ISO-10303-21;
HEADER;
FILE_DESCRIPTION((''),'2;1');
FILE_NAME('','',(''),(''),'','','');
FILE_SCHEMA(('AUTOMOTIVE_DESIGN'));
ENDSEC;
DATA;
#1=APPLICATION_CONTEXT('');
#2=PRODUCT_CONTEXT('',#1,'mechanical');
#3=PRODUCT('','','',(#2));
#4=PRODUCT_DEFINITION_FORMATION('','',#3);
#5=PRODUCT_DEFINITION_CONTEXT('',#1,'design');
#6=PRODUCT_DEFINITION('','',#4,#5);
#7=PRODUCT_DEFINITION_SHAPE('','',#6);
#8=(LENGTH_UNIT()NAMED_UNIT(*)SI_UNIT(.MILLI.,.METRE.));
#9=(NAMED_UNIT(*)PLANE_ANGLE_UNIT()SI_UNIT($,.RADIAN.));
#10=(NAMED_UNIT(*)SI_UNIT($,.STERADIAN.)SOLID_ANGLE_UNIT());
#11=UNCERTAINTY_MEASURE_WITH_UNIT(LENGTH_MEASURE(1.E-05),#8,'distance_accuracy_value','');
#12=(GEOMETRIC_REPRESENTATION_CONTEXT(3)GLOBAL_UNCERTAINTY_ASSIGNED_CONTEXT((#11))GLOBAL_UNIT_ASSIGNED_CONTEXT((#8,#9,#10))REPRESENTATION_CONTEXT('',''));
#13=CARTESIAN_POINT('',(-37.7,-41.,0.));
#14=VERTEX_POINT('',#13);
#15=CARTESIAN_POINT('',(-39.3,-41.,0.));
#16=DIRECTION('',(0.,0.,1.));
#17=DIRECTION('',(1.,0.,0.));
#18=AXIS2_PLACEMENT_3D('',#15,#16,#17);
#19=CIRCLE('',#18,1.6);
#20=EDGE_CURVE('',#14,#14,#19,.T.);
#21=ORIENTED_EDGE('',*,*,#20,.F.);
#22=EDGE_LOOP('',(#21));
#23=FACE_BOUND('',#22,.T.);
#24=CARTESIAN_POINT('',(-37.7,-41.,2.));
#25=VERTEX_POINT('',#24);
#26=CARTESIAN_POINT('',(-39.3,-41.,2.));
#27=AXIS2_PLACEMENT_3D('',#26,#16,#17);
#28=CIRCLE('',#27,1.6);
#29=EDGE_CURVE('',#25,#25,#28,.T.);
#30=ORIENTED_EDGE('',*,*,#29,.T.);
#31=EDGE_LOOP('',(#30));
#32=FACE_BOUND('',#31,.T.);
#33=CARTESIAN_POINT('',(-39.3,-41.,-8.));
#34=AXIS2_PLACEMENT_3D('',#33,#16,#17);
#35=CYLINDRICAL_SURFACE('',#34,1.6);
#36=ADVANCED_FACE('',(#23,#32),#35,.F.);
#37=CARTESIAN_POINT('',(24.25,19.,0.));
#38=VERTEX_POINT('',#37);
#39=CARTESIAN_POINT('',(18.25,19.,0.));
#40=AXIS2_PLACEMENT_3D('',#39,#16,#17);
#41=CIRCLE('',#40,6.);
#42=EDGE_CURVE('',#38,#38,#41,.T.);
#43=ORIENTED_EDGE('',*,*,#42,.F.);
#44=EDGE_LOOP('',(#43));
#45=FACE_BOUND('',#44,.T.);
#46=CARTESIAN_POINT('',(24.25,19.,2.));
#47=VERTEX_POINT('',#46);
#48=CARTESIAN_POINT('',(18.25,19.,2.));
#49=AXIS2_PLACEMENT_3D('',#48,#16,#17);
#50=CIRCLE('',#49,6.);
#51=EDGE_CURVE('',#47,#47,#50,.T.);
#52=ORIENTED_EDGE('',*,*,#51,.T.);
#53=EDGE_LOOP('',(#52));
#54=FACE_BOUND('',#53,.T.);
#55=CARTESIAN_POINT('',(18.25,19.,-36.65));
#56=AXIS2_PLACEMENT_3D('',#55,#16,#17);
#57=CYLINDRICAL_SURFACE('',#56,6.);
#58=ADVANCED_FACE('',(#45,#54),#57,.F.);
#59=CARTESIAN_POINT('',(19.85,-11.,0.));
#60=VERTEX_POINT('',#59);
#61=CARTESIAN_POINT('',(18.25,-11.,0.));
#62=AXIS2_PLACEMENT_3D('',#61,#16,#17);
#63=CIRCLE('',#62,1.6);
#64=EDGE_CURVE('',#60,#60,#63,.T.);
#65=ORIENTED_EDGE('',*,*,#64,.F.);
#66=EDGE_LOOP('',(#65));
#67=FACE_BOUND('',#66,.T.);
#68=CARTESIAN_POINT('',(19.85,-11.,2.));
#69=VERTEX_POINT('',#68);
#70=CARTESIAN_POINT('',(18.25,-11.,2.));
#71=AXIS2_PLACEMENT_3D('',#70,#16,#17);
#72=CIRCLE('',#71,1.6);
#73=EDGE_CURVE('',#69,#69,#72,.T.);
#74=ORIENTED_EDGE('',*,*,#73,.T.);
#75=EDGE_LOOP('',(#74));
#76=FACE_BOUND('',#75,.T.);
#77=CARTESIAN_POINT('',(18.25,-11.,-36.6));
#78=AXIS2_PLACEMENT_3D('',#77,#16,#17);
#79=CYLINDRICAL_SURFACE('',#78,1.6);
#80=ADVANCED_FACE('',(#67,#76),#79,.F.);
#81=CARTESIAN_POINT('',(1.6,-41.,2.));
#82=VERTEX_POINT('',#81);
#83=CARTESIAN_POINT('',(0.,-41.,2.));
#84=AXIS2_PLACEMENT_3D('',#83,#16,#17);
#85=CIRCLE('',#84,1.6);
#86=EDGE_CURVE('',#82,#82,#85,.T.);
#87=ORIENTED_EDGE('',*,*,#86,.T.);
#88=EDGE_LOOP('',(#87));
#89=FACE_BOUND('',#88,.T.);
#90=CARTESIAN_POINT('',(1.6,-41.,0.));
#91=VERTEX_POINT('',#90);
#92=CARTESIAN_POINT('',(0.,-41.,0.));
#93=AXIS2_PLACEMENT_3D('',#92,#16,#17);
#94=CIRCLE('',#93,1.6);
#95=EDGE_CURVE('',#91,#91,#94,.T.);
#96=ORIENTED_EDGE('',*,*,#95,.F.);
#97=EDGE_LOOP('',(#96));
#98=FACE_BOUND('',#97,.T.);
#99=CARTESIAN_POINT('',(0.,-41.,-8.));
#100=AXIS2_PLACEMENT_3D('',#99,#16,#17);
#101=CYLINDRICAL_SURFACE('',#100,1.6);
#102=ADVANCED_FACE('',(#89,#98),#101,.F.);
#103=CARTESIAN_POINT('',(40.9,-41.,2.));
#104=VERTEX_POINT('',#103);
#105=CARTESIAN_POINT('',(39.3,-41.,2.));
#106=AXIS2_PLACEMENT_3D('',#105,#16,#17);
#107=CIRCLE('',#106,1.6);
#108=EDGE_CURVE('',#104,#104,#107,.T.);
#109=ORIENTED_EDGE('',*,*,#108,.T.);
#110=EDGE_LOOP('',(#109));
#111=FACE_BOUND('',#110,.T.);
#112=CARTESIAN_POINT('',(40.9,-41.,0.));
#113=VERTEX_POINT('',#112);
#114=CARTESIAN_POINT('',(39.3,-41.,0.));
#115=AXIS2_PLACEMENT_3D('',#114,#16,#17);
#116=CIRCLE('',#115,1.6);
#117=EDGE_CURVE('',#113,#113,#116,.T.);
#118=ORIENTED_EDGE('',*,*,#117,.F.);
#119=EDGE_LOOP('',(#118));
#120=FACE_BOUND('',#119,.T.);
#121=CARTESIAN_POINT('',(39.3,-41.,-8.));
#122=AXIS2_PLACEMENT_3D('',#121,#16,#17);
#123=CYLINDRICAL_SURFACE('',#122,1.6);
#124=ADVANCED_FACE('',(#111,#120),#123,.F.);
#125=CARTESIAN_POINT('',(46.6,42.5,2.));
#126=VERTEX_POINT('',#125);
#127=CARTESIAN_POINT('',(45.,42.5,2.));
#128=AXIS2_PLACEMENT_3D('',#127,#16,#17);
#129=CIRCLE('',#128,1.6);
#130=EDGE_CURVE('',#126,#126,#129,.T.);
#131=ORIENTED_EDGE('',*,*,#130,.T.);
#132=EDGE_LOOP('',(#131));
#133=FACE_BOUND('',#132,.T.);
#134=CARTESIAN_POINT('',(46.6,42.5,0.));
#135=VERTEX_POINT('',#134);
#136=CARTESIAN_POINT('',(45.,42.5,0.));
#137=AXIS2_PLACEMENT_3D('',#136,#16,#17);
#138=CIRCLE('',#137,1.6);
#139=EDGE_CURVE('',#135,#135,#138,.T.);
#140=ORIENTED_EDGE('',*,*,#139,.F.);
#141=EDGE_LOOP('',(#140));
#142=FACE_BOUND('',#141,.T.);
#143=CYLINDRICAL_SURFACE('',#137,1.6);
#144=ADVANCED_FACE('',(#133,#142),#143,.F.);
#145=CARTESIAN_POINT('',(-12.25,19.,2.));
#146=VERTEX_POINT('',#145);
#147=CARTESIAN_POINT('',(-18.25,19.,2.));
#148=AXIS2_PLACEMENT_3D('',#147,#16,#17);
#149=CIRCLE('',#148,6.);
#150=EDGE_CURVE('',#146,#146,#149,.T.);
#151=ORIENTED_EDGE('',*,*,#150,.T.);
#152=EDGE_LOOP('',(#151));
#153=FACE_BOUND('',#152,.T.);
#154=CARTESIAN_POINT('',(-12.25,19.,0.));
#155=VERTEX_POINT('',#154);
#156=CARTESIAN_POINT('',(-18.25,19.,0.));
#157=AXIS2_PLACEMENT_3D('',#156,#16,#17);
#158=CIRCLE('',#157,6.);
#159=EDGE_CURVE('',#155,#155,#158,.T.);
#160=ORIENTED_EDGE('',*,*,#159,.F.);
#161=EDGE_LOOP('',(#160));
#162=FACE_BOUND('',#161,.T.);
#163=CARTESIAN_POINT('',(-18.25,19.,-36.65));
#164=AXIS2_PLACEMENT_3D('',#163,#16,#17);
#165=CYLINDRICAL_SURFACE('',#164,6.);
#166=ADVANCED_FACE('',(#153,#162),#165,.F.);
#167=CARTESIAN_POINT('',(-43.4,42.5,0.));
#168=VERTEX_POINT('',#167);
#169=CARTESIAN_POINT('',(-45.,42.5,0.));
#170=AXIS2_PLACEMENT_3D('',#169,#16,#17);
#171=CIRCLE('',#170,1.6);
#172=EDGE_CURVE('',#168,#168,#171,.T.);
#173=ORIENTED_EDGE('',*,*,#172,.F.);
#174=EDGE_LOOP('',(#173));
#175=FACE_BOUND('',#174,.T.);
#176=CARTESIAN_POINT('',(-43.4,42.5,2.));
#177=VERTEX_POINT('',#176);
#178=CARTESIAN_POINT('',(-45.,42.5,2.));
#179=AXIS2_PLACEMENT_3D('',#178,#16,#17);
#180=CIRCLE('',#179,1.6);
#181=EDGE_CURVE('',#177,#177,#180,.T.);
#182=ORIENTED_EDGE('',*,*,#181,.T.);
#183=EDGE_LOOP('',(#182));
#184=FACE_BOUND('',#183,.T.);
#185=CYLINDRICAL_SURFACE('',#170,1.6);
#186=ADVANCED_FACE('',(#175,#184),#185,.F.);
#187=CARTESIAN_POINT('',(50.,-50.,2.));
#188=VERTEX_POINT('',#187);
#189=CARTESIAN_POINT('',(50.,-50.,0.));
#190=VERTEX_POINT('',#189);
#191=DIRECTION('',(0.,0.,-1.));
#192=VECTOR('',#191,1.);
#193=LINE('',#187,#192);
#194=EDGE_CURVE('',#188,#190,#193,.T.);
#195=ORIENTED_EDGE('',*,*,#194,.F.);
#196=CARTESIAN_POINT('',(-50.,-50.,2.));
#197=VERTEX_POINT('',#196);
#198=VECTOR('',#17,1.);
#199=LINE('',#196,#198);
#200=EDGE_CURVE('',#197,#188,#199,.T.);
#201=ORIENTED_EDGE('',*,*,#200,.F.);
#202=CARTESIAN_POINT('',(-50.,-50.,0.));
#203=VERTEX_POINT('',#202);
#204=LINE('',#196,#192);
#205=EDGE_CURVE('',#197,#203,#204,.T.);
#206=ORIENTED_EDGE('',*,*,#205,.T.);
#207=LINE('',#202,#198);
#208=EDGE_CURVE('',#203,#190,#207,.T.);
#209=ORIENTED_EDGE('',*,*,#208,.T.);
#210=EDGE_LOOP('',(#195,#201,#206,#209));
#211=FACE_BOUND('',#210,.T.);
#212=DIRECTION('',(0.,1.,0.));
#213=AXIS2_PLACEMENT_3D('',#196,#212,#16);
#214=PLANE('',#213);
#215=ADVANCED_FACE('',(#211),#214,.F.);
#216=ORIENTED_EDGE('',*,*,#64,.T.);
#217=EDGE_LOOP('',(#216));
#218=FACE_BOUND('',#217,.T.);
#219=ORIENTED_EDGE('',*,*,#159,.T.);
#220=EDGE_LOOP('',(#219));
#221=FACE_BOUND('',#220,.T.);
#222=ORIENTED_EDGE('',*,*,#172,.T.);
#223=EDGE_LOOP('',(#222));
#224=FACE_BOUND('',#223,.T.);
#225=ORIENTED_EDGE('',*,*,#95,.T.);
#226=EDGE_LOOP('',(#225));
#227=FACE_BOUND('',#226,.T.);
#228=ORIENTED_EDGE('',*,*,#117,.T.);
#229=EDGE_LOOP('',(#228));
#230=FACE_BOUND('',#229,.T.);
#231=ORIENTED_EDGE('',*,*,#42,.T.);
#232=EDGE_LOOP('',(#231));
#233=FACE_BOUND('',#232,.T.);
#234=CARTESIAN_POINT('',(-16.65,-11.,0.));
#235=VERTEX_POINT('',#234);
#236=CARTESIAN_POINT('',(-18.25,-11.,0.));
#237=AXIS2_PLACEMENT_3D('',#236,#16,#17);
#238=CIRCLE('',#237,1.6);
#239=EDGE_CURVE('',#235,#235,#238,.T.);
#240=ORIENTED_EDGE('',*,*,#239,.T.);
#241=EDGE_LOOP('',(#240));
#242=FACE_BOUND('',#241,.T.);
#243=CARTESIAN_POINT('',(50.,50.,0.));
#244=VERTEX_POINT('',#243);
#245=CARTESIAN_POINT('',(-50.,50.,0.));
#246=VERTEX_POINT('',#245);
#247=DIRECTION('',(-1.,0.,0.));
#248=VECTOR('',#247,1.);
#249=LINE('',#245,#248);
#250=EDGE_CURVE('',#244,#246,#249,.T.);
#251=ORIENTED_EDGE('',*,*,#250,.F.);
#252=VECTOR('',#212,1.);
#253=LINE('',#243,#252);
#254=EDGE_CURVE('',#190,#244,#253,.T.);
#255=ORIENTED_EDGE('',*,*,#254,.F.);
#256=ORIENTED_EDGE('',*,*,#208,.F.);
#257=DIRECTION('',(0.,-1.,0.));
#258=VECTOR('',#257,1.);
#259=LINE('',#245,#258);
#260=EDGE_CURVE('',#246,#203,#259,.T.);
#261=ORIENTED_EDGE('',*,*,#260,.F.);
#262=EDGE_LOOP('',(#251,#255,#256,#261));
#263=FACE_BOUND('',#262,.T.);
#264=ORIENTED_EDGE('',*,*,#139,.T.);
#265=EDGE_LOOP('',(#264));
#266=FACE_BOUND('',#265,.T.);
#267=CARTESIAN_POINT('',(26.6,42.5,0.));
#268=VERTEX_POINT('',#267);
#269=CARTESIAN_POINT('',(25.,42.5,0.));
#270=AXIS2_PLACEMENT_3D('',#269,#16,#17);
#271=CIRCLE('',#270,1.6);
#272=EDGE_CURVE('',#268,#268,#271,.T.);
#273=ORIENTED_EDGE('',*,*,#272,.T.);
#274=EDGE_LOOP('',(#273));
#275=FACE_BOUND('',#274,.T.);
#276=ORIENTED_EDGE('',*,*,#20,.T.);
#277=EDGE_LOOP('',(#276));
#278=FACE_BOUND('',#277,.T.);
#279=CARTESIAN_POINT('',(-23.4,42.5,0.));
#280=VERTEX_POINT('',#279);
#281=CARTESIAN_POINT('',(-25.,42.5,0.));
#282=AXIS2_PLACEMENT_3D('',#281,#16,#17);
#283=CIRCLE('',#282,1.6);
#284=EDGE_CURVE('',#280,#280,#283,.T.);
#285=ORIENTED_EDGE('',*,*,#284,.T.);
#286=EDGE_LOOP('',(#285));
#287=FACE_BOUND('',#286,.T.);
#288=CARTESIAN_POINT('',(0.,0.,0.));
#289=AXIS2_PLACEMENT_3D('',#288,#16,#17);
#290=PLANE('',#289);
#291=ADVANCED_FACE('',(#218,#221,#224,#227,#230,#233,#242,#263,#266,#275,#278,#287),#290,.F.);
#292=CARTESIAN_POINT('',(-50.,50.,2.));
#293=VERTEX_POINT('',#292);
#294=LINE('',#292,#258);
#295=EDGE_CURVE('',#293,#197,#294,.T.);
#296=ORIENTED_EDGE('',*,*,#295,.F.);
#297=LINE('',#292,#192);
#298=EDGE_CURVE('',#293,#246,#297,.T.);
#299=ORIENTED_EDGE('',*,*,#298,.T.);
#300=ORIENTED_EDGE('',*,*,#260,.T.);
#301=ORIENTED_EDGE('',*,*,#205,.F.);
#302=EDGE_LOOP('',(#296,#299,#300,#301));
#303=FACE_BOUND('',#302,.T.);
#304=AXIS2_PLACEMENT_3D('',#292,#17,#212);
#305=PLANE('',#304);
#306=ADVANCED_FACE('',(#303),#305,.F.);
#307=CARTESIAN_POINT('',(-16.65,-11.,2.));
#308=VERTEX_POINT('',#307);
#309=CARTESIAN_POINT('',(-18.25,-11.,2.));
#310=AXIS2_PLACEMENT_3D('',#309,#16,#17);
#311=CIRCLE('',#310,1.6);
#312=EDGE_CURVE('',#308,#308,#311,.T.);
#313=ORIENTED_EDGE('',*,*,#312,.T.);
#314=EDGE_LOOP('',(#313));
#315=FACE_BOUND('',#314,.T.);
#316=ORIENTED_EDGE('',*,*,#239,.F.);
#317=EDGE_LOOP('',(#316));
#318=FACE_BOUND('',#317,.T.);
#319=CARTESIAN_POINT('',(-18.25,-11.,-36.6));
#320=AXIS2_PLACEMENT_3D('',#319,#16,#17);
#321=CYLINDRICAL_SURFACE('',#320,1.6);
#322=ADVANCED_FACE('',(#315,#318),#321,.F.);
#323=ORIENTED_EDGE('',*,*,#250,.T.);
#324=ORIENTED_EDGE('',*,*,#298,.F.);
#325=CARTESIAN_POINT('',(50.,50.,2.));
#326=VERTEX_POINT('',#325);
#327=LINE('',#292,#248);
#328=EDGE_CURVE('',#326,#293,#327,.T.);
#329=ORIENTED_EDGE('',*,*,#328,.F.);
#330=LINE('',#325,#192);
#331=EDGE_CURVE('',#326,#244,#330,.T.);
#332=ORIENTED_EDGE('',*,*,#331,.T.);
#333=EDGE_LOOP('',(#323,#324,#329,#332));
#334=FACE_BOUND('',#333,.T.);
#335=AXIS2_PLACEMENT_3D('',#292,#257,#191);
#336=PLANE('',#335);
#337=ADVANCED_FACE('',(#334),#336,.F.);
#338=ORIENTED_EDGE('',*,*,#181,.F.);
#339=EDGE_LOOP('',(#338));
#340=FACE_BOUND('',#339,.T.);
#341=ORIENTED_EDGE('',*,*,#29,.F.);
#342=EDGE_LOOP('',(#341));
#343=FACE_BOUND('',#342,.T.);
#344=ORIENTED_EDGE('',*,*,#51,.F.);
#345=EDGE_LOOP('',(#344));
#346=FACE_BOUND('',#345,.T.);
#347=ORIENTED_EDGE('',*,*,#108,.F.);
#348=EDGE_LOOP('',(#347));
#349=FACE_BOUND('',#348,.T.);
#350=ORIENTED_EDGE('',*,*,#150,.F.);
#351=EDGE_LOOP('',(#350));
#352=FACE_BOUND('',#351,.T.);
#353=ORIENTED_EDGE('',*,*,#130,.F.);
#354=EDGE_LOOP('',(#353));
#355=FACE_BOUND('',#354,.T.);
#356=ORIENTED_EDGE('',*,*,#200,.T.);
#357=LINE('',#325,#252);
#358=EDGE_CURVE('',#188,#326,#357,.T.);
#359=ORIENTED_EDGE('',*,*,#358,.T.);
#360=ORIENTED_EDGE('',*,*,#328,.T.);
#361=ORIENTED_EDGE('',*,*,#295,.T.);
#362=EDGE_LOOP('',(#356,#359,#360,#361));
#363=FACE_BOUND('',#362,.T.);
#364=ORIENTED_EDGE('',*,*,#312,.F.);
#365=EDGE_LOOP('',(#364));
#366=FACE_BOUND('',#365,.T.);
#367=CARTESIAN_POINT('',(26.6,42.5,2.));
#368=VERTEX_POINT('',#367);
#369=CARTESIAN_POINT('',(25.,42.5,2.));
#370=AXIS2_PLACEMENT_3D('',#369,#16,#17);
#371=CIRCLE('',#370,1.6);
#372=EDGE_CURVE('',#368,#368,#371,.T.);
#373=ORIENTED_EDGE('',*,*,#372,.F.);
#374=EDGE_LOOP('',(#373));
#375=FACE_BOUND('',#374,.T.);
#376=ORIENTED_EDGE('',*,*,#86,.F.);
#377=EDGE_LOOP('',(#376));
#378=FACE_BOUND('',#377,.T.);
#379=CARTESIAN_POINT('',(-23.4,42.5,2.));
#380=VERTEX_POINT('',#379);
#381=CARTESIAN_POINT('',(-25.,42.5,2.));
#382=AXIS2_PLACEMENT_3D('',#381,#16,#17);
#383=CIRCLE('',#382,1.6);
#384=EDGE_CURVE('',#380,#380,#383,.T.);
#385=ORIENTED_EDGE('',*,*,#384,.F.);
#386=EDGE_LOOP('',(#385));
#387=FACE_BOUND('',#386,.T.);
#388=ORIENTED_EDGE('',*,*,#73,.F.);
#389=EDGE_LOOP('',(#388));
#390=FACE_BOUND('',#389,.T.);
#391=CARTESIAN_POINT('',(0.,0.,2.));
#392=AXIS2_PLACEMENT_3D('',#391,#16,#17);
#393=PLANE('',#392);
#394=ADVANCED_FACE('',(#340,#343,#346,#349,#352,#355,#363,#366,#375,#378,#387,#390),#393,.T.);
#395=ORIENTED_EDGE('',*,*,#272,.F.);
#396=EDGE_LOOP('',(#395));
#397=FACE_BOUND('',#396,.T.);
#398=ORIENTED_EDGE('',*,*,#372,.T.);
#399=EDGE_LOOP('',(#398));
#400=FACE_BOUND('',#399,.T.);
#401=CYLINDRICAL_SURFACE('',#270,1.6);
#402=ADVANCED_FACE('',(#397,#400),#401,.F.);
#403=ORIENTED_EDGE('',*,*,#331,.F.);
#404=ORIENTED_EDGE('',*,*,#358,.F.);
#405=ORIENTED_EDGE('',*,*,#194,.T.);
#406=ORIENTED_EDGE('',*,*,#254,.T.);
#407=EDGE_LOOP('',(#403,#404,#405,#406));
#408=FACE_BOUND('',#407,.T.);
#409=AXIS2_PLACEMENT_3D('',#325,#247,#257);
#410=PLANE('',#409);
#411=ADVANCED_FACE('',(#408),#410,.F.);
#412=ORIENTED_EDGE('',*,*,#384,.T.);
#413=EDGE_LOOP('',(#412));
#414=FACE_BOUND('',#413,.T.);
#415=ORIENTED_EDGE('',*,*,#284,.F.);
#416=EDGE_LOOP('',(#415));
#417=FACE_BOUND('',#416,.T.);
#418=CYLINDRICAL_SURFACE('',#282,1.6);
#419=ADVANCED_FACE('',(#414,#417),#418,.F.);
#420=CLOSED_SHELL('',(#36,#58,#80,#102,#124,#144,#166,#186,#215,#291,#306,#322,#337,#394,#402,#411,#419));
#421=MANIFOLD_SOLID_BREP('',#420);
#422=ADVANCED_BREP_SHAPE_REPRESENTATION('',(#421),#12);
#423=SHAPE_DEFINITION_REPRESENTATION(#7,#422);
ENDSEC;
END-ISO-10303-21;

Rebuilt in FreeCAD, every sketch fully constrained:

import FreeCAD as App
import Part
import Sketcher

V = App.Vector


def add_polygon(sketch, points):
    """Adds a closed chain of lines whose ends are joined by coincident constraints."""
    first, n = sketch.GeometryCount, len(points)
    for a, b in zip(points, points[1:] + points[:1]):
        sketch.addGeometry(Part.LineSegment(App.Vector(*a, 0), App.Vector(*b, 0)), False)
    for i in range(n):
        sketch.addConstraint(Sketcher.Constraint("Coincident", first + i, 2, first + (i + 1) % n, 1))

doc = App.newDocument("Part")
body = doc.addObject("PartDesign::Body", "Body")

# Sketch on XY plane
sketch1 = doc.addObject("Sketcher::SketchObject", "Sketch")
body.addObject(sketch1)
sketch1.AttachmentSupport = (doc.XY_Plane, [""])
sketch1.MapMode = "FlatFace"
add_polygon(sketch1, [(-50, 50), (-50, -50), (50, -50), (50, 50)])  # lines 0-3
sketch1.addConstraint(Sketcher.Constraint("Vertical", 0))
sketch1.addConstraint(Sketcher.Constraint("Horizontal", 1))
sketch1.addConstraint(Sketcher.Constraint("Vertical", 2))
sketch1.addConstraint(Sketcher.Constraint("Horizontal", 3))
sketch1.addConstraint(Sketcher.Constraint("Symmetric", 0, 2, 2, 2, -1, 1))
sketch1.addConstraint(Sketcher.Constraint("Equal", 3, 0))
sketch1.addConstraint(Sketcher.Constraint("DistanceX", 1, 1, 1, 2, 100.0))
pad1 = doc.addObject("PartDesign::Pad", "Pad")
body.addObject(pad1)
pad1.Profile = sketch1
pad1.Length = 2

# Sketch on XY plane
sketch2 = doc.addObject("Sketcher::SketchObject", "Sketch001")
body.addObject(sketch2)
sketch2.AttachmentSupport = (doc.XY_Plane, [""])
sketch2.MapMode = "FlatFace"
sketch2.AttachmentOffset = App.Placement(V(0, 0, 2), App.Rotation())
sketch2.addGeometry(Part.Circle(V(-45, 42.5, 0), V(0, 0, 1), 1.6), False)
sketch2.addGeometry(Part.Circle(V(-25, 42.5, 0), V(0, 0, 1), 1.6), False)
sketch2.addGeometry(Part.Circle(V(25, 42.5, 0), V(0, 0, 1), 1.6), False)
sketch2.addGeometry(Part.Circle(V(45, 42.5, 0), V(0, 0, 1), 1.6), False)
sketch2.addConstraint(Sketcher.Constraint("Equal", 0, 1))
sketch2.addConstraint(Sketcher.Constraint("Equal", 1, 2))
sketch2.addConstraint(Sketcher.Constraint("Equal", 2, 3))
sketch2.addConstraint(Sketcher.Constraint("Symmetric", 1, 3, 2, 3, -2))
sketch2.addConstraint(Sketcher.Constraint("Symmetric", 0, 3, 3, 3, -2))
sketch2.addConstraint(Sketcher.Constraint("Horizontal", 0, 3, 1, 3))
sketch2.addConstraint(Sketcher.Constraint("Diameter", 0, 3.2))
sketch2.addConstraint(Sketcher.Constraint("DistanceX", 0, 3, -1, 1, 45.0))
sketch2.addConstraint(Sketcher.Constraint("DistanceX", 1, 3, -1, 1, 25.0))
sketch2.addConstraint(Sketcher.Constraint("DistanceY", -1, 1, 0, 3, 42.5))
pocket1 = doc.addObject("PartDesign::Pocket", "Pocket")
body.addObject(pocket1)
pocket1.Profile = sketch2
pocket1.Length = 2

# Sketch on XY plane
sketch3 = doc.addObject("Sketcher::SketchObject", "Sketch002")
body.addObject(sketch3)
sketch3.AttachmentSupport = (doc.XY_Plane, [""])
sketch3.MapMode = "FlatFace"
sketch3.AttachmentOffset = App.Placement(V(0, 0, 2), App.Rotation())
sketch3.addGeometry(Part.Circle(V(0, -41, 0), V(0, 0, 1), 1.6), False)
sketch3.addConstraint(Sketcher.Constraint("PointOnObject", 0, 3, -2))
sketch3.addConstraint(Sketcher.Constraint("Diameter", 0, 3.2))
sketch3.addConstraint(Sketcher.Constraint("DistanceY", 0, 3, -1, 1, 41.0))
pocket2 = doc.addObject("PartDesign::Pocket", "Pocket001")
body.addObject(pocket2)
pocket2.Profile = sketch3
pocket2.Length = 10

# Sketch on XY plane
sketch4 = doc.addObject("Sketcher::SketchObject", "Sketch003")
body.addObject(sketch4)
sketch4.AttachmentSupport = (doc.XY_Plane, [""])
sketch4.MapMode = "FlatFace"
sketch4.AttachmentOffset = App.Placement(V(0, 0, 2), App.Rotation())
sketch4.addGeometry(Part.Circle(V(-18, 19, 0), V(0, 0, 1), 6), False)
sketch4.addGeometry(Part.Circle(V(18, 19, 0), V(0, 0, 1), 6), False)
sketch4.addConstraint(Sketcher.Constraint("Equal", 0, 1))
sketch4.addConstraint(Sketcher.Constraint("Symmetric", 0, 3, 1, 3, -2))
sketch4.addConstraint(Sketcher.Constraint("Diameter", 0, 12.0))
sketch4.addConstraint(Sketcher.Constraint("DistanceY", -1, 1, 0, 3, 19.0))
sketch4.addConstraint(Sketcher.Constraint("DistanceX", 0, 3, 1, 3, 36.5))
pocket3 = doc.addObject("PartDesign::Pocket", "Pocket002")
body.addObject(pocket3)
pocket3.Profile = sketch4
pocket3.Length = 38.65

# Sketch on XY plane
sketch5 = doc.addObject("Sketcher::SketchObject", "Sketch004")
body.addObject(sketch5)
sketch5.AttachmentSupport = (doc.XY_Plane, [""])
sketch5.MapMode = "FlatFace"
sketch5.AttachmentOffset = App.Placement(V(0, 0, 2), App.Rotation())
sketch5.addGeometry(Part.Circle(V(-18.2, -11, 0), V(0, 0, 1), 1.6), False)
sketch5.addGeometry(Part.Circle(V(18.2, -11, 0), V(0, 0, 1), 1.6), False)
sketch5.addConstraint(Sketcher.Constraint("Equal", 0, 1))
sketch5.addConstraint(Sketcher.Constraint("Symmetric", 0, 3, 1, 3, -2))
sketch5.addConstraint(Sketcher.Constraint("Diameter", 0, 3.2))
sketch5.addConstraint(Sketcher.Constraint("DistanceY", 0, 3, -1, 1, 11.0))
sketch5.addConstraint(Sketcher.Constraint("DistanceX", 0, 3, 1, 3, 36.5))
pocket4 = doc.addObject("PartDesign::Pocket", "Pocket003")
body.addObject(pocket4)
pocket4.Profile = sketch5
pocket4.Length = 38.6

# Sketch on XY plane
sketch6 = doc.addObject("Sketcher::SketchObject", "Sketch005")
body.addObject(sketch6)
sketch6.AttachmentSupport = (doc.XY_Plane, [""])
sketch6.MapMode = "FlatFace"
sketch6.AttachmentOffset = App.Placement(V(0, 0, 2), App.Rotation())
sketch6.addGeometry(Part.Circle(V(-39.3, -41, 0), V(0, 0, 1), 1.6), False)
sketch6.addGeometry(Part.Circle(V(39.3, -41, 0), V(0, 0, 1), 1.6), False)
sketch6.addConstraint(Sketcher.Constraint("Equal", 0, 1))
sketch6.addConstraint(Sketcher.Constraint("Symmetric", 0, 3, 1, 3, -2))
sketch6.addConstraint(Sketcher.Constraint("Diameter", 0, 3.2))
sketch6.addConstraint(Sketcher.Constraint("DistanceY", 0, 3, -1, 1, 41.0))
sketch6.addConstraint(Sketcher.Constraint("DistanceX", 0, 3, -1, 1, 39.3))
pocket5 = doc.addObject("PartDesign::Pocket", "Pocket004")
body.addObject(pocket5)
pocket5.Profile = sketch6
pocket5.Length = 10

doc.recompute()
